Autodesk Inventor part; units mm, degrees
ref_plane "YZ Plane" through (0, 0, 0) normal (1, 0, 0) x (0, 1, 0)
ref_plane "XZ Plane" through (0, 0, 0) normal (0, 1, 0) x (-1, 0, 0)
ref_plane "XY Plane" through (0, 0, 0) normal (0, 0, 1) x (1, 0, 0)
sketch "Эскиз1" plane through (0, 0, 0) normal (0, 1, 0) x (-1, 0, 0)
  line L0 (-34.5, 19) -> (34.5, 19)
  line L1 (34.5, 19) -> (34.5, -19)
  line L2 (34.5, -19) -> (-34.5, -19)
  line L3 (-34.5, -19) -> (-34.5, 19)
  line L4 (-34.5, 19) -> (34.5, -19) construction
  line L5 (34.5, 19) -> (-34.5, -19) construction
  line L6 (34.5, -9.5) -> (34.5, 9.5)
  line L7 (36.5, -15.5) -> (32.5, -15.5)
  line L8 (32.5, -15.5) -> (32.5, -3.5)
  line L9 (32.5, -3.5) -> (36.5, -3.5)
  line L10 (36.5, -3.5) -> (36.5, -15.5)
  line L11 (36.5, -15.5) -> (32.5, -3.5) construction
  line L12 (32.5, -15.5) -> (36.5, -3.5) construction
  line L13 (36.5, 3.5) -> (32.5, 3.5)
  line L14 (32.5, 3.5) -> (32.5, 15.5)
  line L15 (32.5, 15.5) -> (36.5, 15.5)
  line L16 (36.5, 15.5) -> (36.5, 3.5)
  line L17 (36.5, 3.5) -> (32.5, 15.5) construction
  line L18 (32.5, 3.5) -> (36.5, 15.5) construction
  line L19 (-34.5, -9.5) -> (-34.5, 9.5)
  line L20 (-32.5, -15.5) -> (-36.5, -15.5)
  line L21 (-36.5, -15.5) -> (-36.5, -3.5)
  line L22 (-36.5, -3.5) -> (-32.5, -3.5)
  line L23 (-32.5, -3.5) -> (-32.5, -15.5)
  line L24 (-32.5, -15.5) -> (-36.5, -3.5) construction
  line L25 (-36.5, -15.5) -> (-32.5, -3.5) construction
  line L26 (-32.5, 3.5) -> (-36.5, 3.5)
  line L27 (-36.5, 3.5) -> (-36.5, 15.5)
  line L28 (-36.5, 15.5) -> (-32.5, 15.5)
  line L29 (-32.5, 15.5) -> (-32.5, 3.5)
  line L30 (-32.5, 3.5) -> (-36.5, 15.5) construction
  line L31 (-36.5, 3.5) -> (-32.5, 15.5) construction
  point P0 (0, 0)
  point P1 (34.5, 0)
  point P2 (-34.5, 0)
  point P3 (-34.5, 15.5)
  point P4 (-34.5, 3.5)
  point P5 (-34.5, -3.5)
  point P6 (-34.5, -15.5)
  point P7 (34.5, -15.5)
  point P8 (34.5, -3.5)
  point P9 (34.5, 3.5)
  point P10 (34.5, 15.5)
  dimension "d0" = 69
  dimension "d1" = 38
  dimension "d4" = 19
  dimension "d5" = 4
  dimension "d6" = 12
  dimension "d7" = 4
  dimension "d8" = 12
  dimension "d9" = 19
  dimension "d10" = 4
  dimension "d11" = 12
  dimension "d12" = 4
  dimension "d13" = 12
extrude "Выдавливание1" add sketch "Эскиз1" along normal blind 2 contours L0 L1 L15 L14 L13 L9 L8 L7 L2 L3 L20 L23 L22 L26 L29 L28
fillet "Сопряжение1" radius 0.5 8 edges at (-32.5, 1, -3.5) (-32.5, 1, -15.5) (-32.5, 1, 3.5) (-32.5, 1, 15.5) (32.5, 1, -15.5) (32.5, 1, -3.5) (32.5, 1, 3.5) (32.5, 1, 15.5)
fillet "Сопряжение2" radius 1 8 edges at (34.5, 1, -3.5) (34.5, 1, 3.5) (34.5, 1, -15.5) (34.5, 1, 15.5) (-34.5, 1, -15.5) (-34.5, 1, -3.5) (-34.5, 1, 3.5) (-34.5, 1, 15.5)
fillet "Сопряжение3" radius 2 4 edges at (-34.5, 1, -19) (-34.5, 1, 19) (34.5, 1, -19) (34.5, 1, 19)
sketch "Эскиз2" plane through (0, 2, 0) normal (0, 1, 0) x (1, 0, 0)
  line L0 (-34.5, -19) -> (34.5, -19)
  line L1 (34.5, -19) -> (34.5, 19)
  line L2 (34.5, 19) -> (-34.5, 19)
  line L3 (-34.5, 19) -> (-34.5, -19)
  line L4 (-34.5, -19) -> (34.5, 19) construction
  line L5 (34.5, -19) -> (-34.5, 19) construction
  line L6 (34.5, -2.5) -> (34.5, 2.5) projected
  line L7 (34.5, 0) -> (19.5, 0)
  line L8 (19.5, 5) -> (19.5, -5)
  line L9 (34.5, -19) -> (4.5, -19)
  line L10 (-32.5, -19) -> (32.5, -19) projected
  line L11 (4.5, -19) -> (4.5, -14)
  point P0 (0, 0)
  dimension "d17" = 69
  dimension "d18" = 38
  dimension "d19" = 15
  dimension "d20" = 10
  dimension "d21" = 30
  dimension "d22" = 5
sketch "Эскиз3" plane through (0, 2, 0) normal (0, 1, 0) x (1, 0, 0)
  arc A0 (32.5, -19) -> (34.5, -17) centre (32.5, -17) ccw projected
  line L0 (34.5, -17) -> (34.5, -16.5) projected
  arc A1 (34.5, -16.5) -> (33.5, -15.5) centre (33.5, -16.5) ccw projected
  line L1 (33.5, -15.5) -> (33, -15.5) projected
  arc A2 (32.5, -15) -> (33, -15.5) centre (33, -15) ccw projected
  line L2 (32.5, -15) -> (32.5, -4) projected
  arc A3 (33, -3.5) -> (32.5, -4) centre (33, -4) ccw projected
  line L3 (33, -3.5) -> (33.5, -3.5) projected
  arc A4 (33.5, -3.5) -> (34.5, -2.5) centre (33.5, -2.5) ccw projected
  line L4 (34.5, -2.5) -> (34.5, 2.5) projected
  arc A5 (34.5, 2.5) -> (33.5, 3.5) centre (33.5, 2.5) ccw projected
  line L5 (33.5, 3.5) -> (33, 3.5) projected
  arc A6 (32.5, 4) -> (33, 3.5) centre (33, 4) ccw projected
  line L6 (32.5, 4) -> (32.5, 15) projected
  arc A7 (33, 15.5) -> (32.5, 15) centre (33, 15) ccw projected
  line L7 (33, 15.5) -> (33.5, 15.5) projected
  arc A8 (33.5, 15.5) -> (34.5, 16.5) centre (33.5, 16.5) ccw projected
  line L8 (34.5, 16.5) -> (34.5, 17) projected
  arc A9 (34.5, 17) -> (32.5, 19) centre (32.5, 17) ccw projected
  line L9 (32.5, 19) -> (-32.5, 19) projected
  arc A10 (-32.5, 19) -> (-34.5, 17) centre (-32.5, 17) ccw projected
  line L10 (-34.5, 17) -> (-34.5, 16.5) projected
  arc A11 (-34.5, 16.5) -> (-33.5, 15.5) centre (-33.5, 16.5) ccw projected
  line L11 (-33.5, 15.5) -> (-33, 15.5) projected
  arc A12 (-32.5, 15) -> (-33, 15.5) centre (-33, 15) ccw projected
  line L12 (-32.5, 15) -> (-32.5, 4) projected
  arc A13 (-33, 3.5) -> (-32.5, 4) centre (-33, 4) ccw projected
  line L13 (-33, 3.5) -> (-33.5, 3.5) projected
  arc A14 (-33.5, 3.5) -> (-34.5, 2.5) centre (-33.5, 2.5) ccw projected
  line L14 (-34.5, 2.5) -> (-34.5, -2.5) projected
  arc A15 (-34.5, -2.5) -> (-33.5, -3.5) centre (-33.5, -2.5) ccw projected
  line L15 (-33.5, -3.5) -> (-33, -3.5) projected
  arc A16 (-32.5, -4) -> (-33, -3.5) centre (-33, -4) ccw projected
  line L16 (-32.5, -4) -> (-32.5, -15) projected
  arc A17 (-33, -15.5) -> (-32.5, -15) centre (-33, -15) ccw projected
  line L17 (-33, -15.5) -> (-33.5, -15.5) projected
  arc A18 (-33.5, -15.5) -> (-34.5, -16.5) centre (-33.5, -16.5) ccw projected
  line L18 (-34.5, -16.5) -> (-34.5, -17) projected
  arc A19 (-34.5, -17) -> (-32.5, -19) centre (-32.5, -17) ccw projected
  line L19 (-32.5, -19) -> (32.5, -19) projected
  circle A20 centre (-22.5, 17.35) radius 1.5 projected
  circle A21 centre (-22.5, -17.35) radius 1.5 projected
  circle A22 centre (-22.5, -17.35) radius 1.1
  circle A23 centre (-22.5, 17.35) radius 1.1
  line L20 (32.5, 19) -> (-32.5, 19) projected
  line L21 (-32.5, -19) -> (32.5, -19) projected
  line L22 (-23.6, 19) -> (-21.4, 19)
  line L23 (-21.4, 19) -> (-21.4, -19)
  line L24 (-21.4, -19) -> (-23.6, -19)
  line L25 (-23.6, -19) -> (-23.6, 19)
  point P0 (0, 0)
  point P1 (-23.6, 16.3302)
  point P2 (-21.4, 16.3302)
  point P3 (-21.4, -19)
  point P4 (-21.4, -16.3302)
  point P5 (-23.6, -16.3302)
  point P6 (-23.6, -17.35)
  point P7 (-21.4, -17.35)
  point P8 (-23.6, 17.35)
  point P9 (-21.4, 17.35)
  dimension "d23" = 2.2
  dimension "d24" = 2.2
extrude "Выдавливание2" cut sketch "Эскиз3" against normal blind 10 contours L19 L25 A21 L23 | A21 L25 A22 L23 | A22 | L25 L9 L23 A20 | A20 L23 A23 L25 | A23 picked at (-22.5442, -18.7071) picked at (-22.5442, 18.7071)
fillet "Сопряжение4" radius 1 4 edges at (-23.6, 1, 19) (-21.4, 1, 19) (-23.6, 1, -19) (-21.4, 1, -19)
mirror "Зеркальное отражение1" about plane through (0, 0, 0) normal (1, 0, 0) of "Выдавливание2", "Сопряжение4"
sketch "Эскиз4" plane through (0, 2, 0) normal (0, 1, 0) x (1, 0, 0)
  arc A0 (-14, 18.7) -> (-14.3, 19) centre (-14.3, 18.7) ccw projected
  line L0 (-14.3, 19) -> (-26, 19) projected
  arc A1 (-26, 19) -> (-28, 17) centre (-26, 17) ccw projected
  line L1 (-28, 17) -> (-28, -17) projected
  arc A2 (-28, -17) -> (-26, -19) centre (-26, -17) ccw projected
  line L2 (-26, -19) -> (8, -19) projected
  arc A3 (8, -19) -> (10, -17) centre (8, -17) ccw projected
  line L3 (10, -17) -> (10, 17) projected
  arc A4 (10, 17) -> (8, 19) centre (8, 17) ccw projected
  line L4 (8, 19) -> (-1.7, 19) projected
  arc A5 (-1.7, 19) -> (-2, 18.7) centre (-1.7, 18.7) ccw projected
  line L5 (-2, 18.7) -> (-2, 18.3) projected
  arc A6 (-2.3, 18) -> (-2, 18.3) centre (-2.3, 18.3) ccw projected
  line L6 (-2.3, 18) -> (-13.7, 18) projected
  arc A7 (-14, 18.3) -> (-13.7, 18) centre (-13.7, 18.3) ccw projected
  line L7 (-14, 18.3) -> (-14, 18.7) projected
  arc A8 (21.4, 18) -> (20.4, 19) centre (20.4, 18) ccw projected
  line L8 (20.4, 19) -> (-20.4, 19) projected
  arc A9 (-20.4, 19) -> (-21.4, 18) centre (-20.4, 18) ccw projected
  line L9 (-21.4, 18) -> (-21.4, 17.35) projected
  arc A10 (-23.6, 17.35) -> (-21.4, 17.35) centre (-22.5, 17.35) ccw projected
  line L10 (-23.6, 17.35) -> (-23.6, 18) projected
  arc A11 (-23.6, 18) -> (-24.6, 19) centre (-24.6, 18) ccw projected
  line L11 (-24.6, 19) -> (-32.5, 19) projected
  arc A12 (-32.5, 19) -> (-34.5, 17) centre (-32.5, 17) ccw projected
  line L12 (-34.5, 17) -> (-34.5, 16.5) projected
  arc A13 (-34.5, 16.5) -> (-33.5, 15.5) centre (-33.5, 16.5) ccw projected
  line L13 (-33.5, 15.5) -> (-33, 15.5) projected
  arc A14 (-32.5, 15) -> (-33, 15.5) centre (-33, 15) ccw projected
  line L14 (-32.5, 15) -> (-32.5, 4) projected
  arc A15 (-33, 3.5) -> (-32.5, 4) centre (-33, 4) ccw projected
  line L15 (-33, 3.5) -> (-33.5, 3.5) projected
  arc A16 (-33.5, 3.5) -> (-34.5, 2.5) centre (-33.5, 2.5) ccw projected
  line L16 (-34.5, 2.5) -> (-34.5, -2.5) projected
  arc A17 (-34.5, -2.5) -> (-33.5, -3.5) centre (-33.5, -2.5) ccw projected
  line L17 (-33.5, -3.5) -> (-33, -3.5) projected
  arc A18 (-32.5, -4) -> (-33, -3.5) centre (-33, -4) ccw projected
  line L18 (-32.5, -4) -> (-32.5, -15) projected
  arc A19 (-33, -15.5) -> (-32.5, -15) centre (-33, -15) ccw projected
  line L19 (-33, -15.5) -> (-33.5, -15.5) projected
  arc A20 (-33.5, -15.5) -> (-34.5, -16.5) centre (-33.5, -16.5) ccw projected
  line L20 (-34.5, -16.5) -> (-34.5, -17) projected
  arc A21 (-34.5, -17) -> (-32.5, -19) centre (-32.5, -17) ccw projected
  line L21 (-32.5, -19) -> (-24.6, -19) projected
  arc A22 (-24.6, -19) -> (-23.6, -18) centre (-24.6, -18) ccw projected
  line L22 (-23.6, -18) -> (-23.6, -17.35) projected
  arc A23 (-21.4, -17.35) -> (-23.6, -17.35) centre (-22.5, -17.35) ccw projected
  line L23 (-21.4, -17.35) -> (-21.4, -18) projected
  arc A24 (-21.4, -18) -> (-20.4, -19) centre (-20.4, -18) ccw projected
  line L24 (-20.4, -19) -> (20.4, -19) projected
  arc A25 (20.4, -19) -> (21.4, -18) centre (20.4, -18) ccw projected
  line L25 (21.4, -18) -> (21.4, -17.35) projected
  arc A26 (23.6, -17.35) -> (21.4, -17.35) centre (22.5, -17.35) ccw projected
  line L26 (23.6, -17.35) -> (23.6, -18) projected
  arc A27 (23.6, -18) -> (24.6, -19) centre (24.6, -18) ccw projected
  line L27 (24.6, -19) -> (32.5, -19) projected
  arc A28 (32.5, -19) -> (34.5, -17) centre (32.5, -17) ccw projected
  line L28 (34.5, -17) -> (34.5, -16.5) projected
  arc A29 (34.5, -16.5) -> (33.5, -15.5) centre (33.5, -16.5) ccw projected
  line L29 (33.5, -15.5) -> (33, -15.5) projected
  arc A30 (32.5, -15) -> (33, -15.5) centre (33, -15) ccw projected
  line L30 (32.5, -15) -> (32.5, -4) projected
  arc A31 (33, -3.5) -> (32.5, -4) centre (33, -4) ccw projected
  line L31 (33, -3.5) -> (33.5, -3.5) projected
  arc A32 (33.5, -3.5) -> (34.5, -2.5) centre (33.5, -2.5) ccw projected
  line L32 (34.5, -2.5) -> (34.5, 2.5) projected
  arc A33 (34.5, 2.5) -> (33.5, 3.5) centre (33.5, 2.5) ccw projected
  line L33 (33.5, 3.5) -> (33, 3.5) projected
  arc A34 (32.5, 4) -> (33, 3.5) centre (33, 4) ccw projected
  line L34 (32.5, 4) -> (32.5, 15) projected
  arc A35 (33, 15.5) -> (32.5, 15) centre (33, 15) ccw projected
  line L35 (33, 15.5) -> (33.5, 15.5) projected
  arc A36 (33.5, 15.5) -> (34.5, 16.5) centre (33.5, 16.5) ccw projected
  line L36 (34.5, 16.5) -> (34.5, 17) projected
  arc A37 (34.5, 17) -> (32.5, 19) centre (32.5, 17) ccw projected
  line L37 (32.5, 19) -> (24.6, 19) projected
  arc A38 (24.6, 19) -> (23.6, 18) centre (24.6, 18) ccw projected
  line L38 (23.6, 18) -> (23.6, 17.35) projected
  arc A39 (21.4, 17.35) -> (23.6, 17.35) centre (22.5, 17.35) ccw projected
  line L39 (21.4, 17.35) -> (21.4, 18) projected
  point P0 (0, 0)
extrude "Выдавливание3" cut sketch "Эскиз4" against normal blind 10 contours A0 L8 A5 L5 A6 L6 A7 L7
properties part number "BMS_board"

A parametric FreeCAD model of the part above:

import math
import FreeCAD as App
import Part
import Sketcher
from FreeCAD import Vector
Q = App.Units.Quantity


def edges_at(feature, points):
    """Names of the edges that pass closest to the given points."""
    edges = feature.Shape.Edges
    near = lambda p: min(range(len(edges)), key=lambda i: edges[i].distToShape(Part.Vertex(*p))[0])
    return sorted({f"Edge{near(p) + 1}" for p in points})


def add_polygon(sketch, points):
    """Adds a closed chain of lines whose ends are joined by coincident constraints."""
    first, n = sketch.GeometryCount, len(points)
    for a, b in zip(points, points[1:] + points[:1]):
        sketch.addGeometry(Part.LineSegment(App.Vector(*a, 0), App.Vector(*b, 0)), False)
    for i in range(n):
        sketch.addConstraint(Sketcher.Constraint("Coincident", first + i, 2, first + (i + 1) % n, 1))

doc = App.newDocument("Part")
body = doc.addObject("PartDesign::Body", "Body")

# Sketch on XZ plane
sketch1 = doc.addObject("Sketcher::SketchObject", "Sketch")
body.addObject(sketch1)
sketch1.AttachmentSupport = (doc.XZ_Plane, [""])
sketch1.MapMode = "FlatFace"
add_polygon(sketch1, [(-34.5, 19), (34.5, 19), (34.5, 15.5), (32.5, 15.5), (32.5, 3.5), (34.5, 3.5), (34.5, -3.5), (32.5, -3.5), (32.5, -15.5), (34.5, -15.5), (34.5, -19), (-34.5, -19), (-34.5, -15.5), (-32.5, -15.5), (-32.5, -3.5), (-34.5, -3.5), (-34.5, 3.5), (-32.5, 3.5), (-32.5, 15.5), (-34.5, 15.5)])  # lines 0-19
sketch1.addConstraint(Sketcher.Constraint("Horizontal", 0))
sketch1.addConstraint(Sketcher.Constraint("Vertical", 1))
sketch1.addConstraint(Sketcher.Constraint("Horizontal", 2))
sketch1.addConstraint(Sketcher.Constraint("Vertical", 3))
sketch1.addConstraint(Sketcher.Constraint("Horizontal", 4))
sketch1.addConstraint(Sketcher.Constraint("Vertical", 5))
sketch1.addConstraint(Sketcher.Constraint("Horizontal", 6))
sketch1.addConstraint(Sketcher.Constraint("Vertical", 7))
sketch1.addConstraint(Sketcher.Constraint("Horizontal", 8))
sketch1.addConstraint(Sketcher.Constraint("Vertical", 9))
sketch1.addConstraint(Sketcher.Constraint("Horizontal", 10))
sketch1.addConstraint(Sketcher.Constraint("Vertical", 11))
sketch1.addConstraint(Sketcher.Constraint("Horizontal", 12))
sketch1.addConstraint(Sketcher.Constraint("Vertical", 13))
sketch1.addConstraint(Sketcher.Constraint("Horizontal", 14))
sketch1.addConstraint(Sketcher.Constraint("Vertical", 15))
sketch1.addConstraint(Sketcher.Constraint("Horizontal", 16))
sketch1.addConstraint(Sketcher.Constraint("Vertical", 17))
sketch1.addConstraint(Sketcher.Constraint("Horizontal", 18))
sketch1.addConstraint(Sketcher.Constraint("Vertical", 19))
sketch1.addConstraint(Sketcher.Constraint("Symmetric", 0, 2, 10, 2, -1, 1))
sketch1.addConstraint(Sketcher.Constraint("Symmetric", 2, 2, 12, 2, -1, 1))
sketch1.addConstraint(Sketcher.Constraint("Symmetric", 4, 2, 14, 2, -1, 1))
sketch1.addConstraint(Sketcher.Constraint("Symmetric", 6, 2, 16, 2, -1, 1))
sketch1.addConstraint(Sketcher.Constraint("Symmetric", 8, 2, 18, 2, -1, 1))
sketch1.addConstraint(Sketcher.Constraint("Symmetric", 8, 2, 11, 2, -2))
sketch1.addConstraint(Sketcher.Constraint("Symmetric", 6, 2, 13, 2, -2))
sketch1.addConstraint(Sketcher.Constraint("Vertical", 1, 2, 4, 2))
sketch1.addConstraint(Sketcher.Constraint("DistanceX", 0, 1, 0, 2, Q("69 mm")))
sketch1.addConstraint(Sketcher.Constraint("DistanceY", 3, 2, 3, 1, Q("12 mm")))
sketch1.addConstraint(Sketcher.Constraint("DistanceY", -1, 1, 0, 2, Q("19 mm")))
sketch1.addConstraint(Sketcher.Constraint("DistanceY", 5, 2, 1, 2, Q("19 mm")))
sketch1.addConstraint(Sketcher.Constraint("DistanceX", 2, 2, 2, 1, Q("2 mm")))
pad1 = doc.addObject("PartDesign::Pad", "Pad")
body.addObject(pad1)
pad1.Profile = sketch1
pad1.Length = 2
pad1.Reversed = True
doc.recompute()

fillet = doc.addObject("PartDesign::Fillet", "Fillet")
body.addObject(fillet)
fillet.Base = (pad1, edges_at(pad1, [
    (-32.5, 1, -3.5),
    (-32.5, 1, -15.5),
    (-32.5, 1, 3.5),
    (-32.5, 1, 15.5),
    (32.5, 1, -15.5),
    (32.5, 1, -3.5),
    (32.5, 1, 3.5),
    (32.5, 1, 15.5),
]))
fillet.Radius = 0.5
doc.recompute()

fillet2 = doc.addObject("PartDesign::Fillet", "Fillet001")
body.addObject(fillet2)
fillet2.Base = (fillet, edges_at(fillet, [
    (34.5, 1, -3.5),
    (34.5, 1, 3.5),
    (34.5, 1, -15.5),
    (34.5, 1, 15.5),
    (-34.5, 1, -15.5),
    (-34.5, 1, -3.5),
    (-34.5, 1, 3.5),
    (-34.5, 1, 15.5),
]))
fillet2.Radius = 1
doc.recompute()

fillet3 = doc.addObject("PartDesign::Fillet", "Fillet002")
body.addObject(fillet3)
fillet3.Base = (fillet2, edges_at(fillet2, [
    (-34.5, 1, -19),
    (-34.5, 1, 19),
    (34.5, 1, -19),
    (34.5, 1, 19),
]))
fillet3.Radius = 2

# Sketch on XZ plane
sketch2 = doc.addObject("Sketcher::SketchObject", "Sketch001")
body.addObject(sketch2)
sketch2.AttachmentSupport = (doc.XZ_Plane, [""])
sketch2.MapMode = "FlatFace"
sketch2.AttachmentOffset = App.Placement(Vector(0, 0, -2), App.Rotation())
sketch2.addGeometry(Part.LineSegment(Vector(-23.6, 19, 0), Vector(-21.4, 19, 0)), False)
sketch2.addGeometry(Part.LineSegment(Vector(-21.4, 19, 0), Vector(-21.4, 17.4, 0)), False)
sketch2.addGeometry(Part.ArcOfCircle(Part.Circle(Vector(-22.5, 17.4, 0), Vector(0, 0, 1), 1.1), math.radians(180), math.radians(360)), False)
sketch2.addGeometry(Part.LineSegment(Vector(-23.6, 17.4, 0), Vector(-23.6, 19, 0)), False)
sketch2.addGeometry(Part.LineSegment(Vector(-23.6, -19, 0), Vector(-23.6, -17.4, 0)), False)
sketch2.addGeometry(Part.ArcOfCircle(Part.Circle(Vector(-22.5, -17.4, 0), Vector(0, 0, 1), 1.1), math.radians(0), math.radians(180)), False)
sketch2.addGeometry(Part.LineSegment(Vector(-21.4, -17.4, 0), Vector(-21.4, -19, 0)), False)
sketch2.addGeometry(Part.LineSegment(Vector(-21.4, -19, 0), Vector(-23.6, -19, 0)), False)
sketch2.addConstraint(Sketcher.Constraint("Coincident", 0, 2, 1, 1))
sketch2.addConstraint(Sketcher.Constraint("Tangent", 1, 2, 2, 2))
sketch2.addConstraint(Sketcher.Constraint("Tangent", 2, 1, 3, 1))
sketch2.addConstraint(Sketcher.Constraint("Coincident", 3, 2, 0, 1))
sketch2.addConstraint(Sketcher.Constraint("Tangent", 4, 2, 5, 2))
sketch2.addConstraint(Sketcher.Constraint("Tangent", 5, 1, 6, 1))
sketch2.addConstraint(Sketcher.Constraint("Coincident", 6, 2, 7, 1))
sketch2.addConstraint(Sketcher.Constraint("Coincident", 7, 2, 4, 1))
sketch2.addConstraint(Sketcher.Constraint("Horizontal", 0))
sketch2.addConstraint(Sketcher.Constraint("Vertical", 1))
sketch2.addConstraint(Sketcher.Constraint("Vertical", 3))
sketch2.addConstraint(Sketcher.Constraint("Vertical", 4))
sketch2.addConstraint(Sketcher.Constraint("Vertical", 6))
sketch2.addConstraint(Sketcher.Constraint("Horizontal", 7))
sketch2.addConstraint(Sketcher.Constraint("Equal", 2, 5))
sketch2.addConstraint(Sketcher.Constraint("Symmetric", 2, 3, 5, 3, -1))
sketch2.addConstraint(Sketcher.Constraint("Equal", 3, 4))
sketch2.addConstraint(Sketcher.Constraint("Radius", 2, Q("1.1 mm")))
sketch2.addConstraint(Sketcher.Constraint("DistanceY", -1, 1, 0, 2, Q("19 mm")))
sketch2.addConstraint(Sketcher.Constraint("DistanceY", 1, 2, 1, 1, Q("1.65 mm")))
sketch2.addConstraint(Sketcher.Constraint("DistanceX", 2, 3, -1, 1, Q("22.5 mm")))
pocket1 = doc.addObject("PartDesign::Pocket", "Pocket")
body.addObject(pocket1)
pocket1.Profile = sketch2
pocket1.Length = 10
pocket1.Reversed = True
doc.recompute()

fillet4 = doc.addObject("PartDesign::Fillet", "Fillet003")
body.addObject(fillet4)
fillet4.Base = (pocket1, edges_at(pocket1, [
    (-23.6, 1, 19),
    (-21.4, 1, 19),
    (-23.6, 1, -19),
    (-21.4, 1, -19),
]))
fillet4.Radius = 1
doc.recompute()

mirrored = doc.addObject("PartDesign::Mirrored", "Mirrored")
body.addObject(mirrored)
mirrored.Originals = [pocket1, fillet4]
mirrored.MirrorPlane = (doc.YZ_Plane, [""])
body.Tip = mirrored

# Sketch on XZ plane
sketch3 = doc.addObject("Sketcher::SketchObject", "Sketch002")
body.addObject(sketch3)
sketch3.AttachmentSupport = (doc.XZ_Plane, [""])
sketch3.MapMode = "FlatFace"
sketch3.AttachmentOffset = App.Placement(Vector(0, 0, -2), App.Rotation())
sketch3.addGeometry(Part.ArcOfCircle(Part.Circle(Vector(-14.3, -18.7, 0), Vector(0, 0, 1), 0.3), math.radians(-90), math.radians(0)), False)
sketch3.addGeometry(Part.LineSegment(Vector(-14, -18.7, 0), Vector(-14, -18.3, 0)), False)
sketch3.addGeometry(Part.ArcOfCircle(Part.Circle(Vector(-13.7, -18.3, 0), Vector(0, 0, 1), 0.3), math.radians(90), math.radians(180)), False)
sketch3.addGeometry(Part.LineSegment(Vector(-13.7, -18, 0), Vector(-2.3, -18, 0)), False)
sketch3.addGeometry(Part.ArcOfCircle(Part.Circle(Vector(-2.3, -18.3, 0), Vector(0, 0, 1), 0.3), math.radians(0), math.radians(90)), False)
sketch3.addGeometry(Part.LineSegment(Vector(-2, -18.3, 0), Vector(-2, -18.7, 0)), False)
sketch3.addGeometry(Part.ArcOfCircle(Part.Circle(Vector(-1.7, -18.7, 0), Vector(0, 0, 1), 0.3), math.radians(180), math.radians(270)), False)
sketch3.addGeometry(Part.LineSegment(Vector(-1.7, -19, 0), Vector(-14.3, -19, 0)), False)
sketch3.addConstraint(Sketcher.Constraint("Tangent", 0, 2, 1, 1))
sketch3.addConstraint(Sketcher.Constraint("Tangent", 1, 2, 2, 2))
sketch3.addConstraint(Sketcher.Constraint("Tangent", 2, 1, 3, 1))
sketch3.addConstraint(Sketcher.Constraint("Tangent", 3, 2, 4, 2))
sketch3.addConstraint(Sketcher.Constraint("Tangent", 4, 1, 5, 1))
sketch3.addConstraint(Sketcher.Constraint("Tangent", 5, 2, 6, 1))
sketch3.addConstraint(Sketcher.Constraint("Tangent", 6, 2, 7, 1))
sketch3.addConstraint(Sketcher.Constraint("Tangent", 7, 2, 0, 1))
sketch3.addConstraint(Sketcher.Constraint("Vertical", 1))
sketch3.addConstraint(Sketcher.Constraint("Horizontal", 3))
sketch3.addConstraint(Sketcher.Constraint("Vertical", 5))
sketch3.addConstraint(Sketcher.Constraint("Horizontal", 7))
sketch3.addConstraint(Sketcher.Constraint("Equal", 0, 2))
sketch3.addConstraint(Sketcher.Constraint("Equal", 2, 4))
sketch3.addConstraint(Sketcher.Constraint("Equal", 4, 6))
sketch3.addConstraint(Sketcher.Constraint("Radius", 0, Q("0.3 mm")))
sketch3.addConstraint(Sketcher.Constraint("DistanceX", 3, 1, 3, 2, Q("11.4 mm")))
sketch3.addConstraint(Sketcher.Constraint("DistanceY", 1, 1, 1, 2, Q("0.4 mm")))
sketch3.addConstraint(Sketcher.Constraint("DistanceX", 0, 2, -1, 1, Q("14 mm")))
sketch3.addConstraint(Sketcher.Constraint("DistanceY", 2, 1, -1, 1, Q("18 mm")))
pocket2 = doc.addObject("PartDesign::Pocket", "Pocket001")
body.addObject(pocket2)
pocket2.Profile = sketch3
pocket2.Length = 10
pocket2.Reversed = True

doc.recompute()
